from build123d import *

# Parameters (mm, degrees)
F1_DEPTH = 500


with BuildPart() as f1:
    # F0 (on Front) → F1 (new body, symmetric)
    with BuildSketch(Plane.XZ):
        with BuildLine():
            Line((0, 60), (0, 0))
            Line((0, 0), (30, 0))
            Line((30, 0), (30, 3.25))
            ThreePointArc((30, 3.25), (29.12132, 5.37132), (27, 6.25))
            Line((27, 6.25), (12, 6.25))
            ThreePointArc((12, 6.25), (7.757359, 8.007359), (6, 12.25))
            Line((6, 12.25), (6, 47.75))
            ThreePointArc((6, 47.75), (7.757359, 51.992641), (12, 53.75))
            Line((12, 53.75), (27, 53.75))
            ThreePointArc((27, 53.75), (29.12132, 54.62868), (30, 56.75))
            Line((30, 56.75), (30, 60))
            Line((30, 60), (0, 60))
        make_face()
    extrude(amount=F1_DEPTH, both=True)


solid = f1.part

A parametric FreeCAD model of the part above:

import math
import FreeCAD as App
import Part
import Sketcher

V = App.Vector

doc = App.newDocument("Part")
params = doc.addObject("Spreadsheet::Sheet", "Params")
for row, (alias, value) in enumerate([
    ("sketch1_radius", "3.000001 mm"),
    ("sketch1_radius2", "5.999999 mm"),
    ("sketch1_width", "30 mm"),
    ("sketch1_width2", "15 mm"),
    ("sketch1_height", "60 mm"),
    ("pad1_length", "1000 mm"),
], start=1):
    params.set(f"A{row}", alias)
    params.set(f"B{row}", "=" + value)
    params.setAlias(f"B{row}", alias)

body = doc.addObject("PartDesign::Body", "Body")

sketch1 = body.newObject("Sketcher::SketchObject", "Sketch")
sketch1.AttachmentSupport = (doc.getObject("XZ_Plane"), [""])
sketch1.MapMode = "FlatFace"
sketch1.addGeometry(Part.LineSegment(V(0, 60, 0), V(0, 0, 0)), False)
sketch1.addGeometry(Part.LineSegment(V(0, 0, 0), V(30, 0, 0)), False)
sketch1.addGeometry(Part.LineSegment(V(30, 0, 0), V(30, 3.25, 0)), False)
sketch1.addGeometry(Part.ArcOfCircle(Part.Circle(V(26.999999, 3.249999, 0), V(0, 0, 1), 3.000001), math.radians(0.000022), math.radians(89.999978)), False)
sketch1.addGeometry(Part.LineSegment(V(27, 6.25, 0), V(12, 6.25, 0)), False)
sketch1.addGeometry(Part.ArcOfCircle(Part.Circle(V(11.999999, 12.249999, 0), V(0, 0, 1), 5.999999), math.radians(179.99999), math.radians(270.00001)), False)
sketch1.addGeometry(Part.LineSegment(V(6, 12.25, 0), V(6, 47.75, 0)), False)
sketch1.addGeometry(Part.ArcOfCircle(Part.Circle(V(11.999999, 47.750001, 0), V(0, 0, 1), 5.999999), math.radians(89.99999), math.radians(180.00001)), False)
sketch1.addGeometry(Part.LineSegment(V(12, 53.75, 0), V(27, 53.75, 0)), False)
sketch1.addGeometry(Part.ArcOfCircle(Part.Circle(V(26.999999, 56.750001, 0), V(0, 0, 1), 3.000001), math.radians(-89.999978), math.radians(-0.000022)), False)
sketch1.addGeometry(Part.LineSegment(V(30, 56.75, 0), V(30, 60, 0)), False)
sketch1.addGeometry(Part.LineSegment(V(30, 60, 0), V(0, 60, 0)), False)
sketch1.addConstraint(Sketcher.Constraint("Coincident", 0, 2, 1, 1))
sketch1.addConstraint(Sketcher.Constraint("Coincident", 1, 2, 2, 1))
sketch1.addConstraint(Sketcher.Constraint("Tangent", 2, 2, 3, 1))
sketch1.addConstraint(Sketcher.Constraint("Tangent", 3, 2, 4, 1))
sketch1.addConstraint(Sketcher.Constraint("Tangent", 4, 2, 5, 2))
sketch1.addConstraint(Sketcher.Constraint("Tangent", 5, 1, 6, 1))
sketch1.addConstraint(Sketcher.Constraint("Tangent", 6, 2, 7, 2))
sketch1.addConstraint(Sketcher.Constraint("Tangent", 7, 1, 8, 1))
sketch1.addConstraint(Sketcher.Constraint("Tangent", 8, 2, 9, 1))
sketch1.addConstraint(Sketcher.Constraint("Tangent", 9, 2, 10, 1))
sketch1.addConstraint(Sketcher.Constraint("Coincident", 10, 2, 11, 1))
sketch1.addConstraint(Sketcher.Constraint("Coincident", 11, 2, 0, 1))
sketch1.addConstraint(Sketcher.Constraint("Vertical", 0))
sketch1.addConstraint(Sketcher.Constraint("Horizontal", 1))
sketch1.addConstraint(Sketcher.Constraint("Vertical", 2))
sketch1.addConstraint(Sketcher.Constraint("Horizontal", 4))
sketch1.addConstraint(Sketcher.Constraint("Vertical", 6))
sketch1.addConstraint(Sketcher.Constraint("Horizontal", 8))
sketch1.addConstraint(Sketcher.Constraint("Vertical", 10))
sketch1.addConstraint(Sketcher.Constraint("Horizontal", 11))
sketch1.addConstraint(Sketcher.Constraint("Coincident", 0, 2, -1, 1))
sketch1.addConstraint(Sketcher.Constraint("Equal", 5, 7))
sketch1.addConstraint(Sketcher.Constraint("Equal", 3, 9))
sketch1.addConstraint(Sketcher.Constraint("Vertical", 3, 3, 9, 3))
sketch1.addConstraint(Sketcher.Constraint("Equal", 2, 10))
sketch1.addConstraint(Sketcher.Constraint("Radius", 3, 3.000001))
sketch1.addConstraint(Sketcher.Constraint("Radius", 5, 5.999999))
sketch1.addConstraint(Sketcher.Constraint("DistanceX", 1, 1, 1, 2, 30.0))
sketch1.addConstraint(Sketcher.Constraint("DistanceX", 4, 2, 4, 1, 15.0))
sketch1.addConstraint(Sketcher.Constraint("DistanceY", 0, 2, 0, 1, 60.0))
sketch1.addConstraint(Sketcher.Constraint("DistanceY", 6, 1, 6, 2, 35.5))
sketch1.setExpression("Constraints[25]", "Params.sketch1_radius")
sketch1.setExpression("Constraints[26]", "Params.sketch1_radius2")
sketch1.setExpression("Constraints[27]", "Params.sketch1_width")
sketch1.setExpression("Constraints[28]", "Params.sketch1_width2")
sketch1.setExpression("Constraints[29]", "Params.sketch1_height")
pad1 = body.newObject("PartDesign::Pad", "Pad")
pad1.Profile = sketch1
pad1.setExpression("Length", "Params.pad1_length")
pad1.Midplane = True

doc.recompute()
